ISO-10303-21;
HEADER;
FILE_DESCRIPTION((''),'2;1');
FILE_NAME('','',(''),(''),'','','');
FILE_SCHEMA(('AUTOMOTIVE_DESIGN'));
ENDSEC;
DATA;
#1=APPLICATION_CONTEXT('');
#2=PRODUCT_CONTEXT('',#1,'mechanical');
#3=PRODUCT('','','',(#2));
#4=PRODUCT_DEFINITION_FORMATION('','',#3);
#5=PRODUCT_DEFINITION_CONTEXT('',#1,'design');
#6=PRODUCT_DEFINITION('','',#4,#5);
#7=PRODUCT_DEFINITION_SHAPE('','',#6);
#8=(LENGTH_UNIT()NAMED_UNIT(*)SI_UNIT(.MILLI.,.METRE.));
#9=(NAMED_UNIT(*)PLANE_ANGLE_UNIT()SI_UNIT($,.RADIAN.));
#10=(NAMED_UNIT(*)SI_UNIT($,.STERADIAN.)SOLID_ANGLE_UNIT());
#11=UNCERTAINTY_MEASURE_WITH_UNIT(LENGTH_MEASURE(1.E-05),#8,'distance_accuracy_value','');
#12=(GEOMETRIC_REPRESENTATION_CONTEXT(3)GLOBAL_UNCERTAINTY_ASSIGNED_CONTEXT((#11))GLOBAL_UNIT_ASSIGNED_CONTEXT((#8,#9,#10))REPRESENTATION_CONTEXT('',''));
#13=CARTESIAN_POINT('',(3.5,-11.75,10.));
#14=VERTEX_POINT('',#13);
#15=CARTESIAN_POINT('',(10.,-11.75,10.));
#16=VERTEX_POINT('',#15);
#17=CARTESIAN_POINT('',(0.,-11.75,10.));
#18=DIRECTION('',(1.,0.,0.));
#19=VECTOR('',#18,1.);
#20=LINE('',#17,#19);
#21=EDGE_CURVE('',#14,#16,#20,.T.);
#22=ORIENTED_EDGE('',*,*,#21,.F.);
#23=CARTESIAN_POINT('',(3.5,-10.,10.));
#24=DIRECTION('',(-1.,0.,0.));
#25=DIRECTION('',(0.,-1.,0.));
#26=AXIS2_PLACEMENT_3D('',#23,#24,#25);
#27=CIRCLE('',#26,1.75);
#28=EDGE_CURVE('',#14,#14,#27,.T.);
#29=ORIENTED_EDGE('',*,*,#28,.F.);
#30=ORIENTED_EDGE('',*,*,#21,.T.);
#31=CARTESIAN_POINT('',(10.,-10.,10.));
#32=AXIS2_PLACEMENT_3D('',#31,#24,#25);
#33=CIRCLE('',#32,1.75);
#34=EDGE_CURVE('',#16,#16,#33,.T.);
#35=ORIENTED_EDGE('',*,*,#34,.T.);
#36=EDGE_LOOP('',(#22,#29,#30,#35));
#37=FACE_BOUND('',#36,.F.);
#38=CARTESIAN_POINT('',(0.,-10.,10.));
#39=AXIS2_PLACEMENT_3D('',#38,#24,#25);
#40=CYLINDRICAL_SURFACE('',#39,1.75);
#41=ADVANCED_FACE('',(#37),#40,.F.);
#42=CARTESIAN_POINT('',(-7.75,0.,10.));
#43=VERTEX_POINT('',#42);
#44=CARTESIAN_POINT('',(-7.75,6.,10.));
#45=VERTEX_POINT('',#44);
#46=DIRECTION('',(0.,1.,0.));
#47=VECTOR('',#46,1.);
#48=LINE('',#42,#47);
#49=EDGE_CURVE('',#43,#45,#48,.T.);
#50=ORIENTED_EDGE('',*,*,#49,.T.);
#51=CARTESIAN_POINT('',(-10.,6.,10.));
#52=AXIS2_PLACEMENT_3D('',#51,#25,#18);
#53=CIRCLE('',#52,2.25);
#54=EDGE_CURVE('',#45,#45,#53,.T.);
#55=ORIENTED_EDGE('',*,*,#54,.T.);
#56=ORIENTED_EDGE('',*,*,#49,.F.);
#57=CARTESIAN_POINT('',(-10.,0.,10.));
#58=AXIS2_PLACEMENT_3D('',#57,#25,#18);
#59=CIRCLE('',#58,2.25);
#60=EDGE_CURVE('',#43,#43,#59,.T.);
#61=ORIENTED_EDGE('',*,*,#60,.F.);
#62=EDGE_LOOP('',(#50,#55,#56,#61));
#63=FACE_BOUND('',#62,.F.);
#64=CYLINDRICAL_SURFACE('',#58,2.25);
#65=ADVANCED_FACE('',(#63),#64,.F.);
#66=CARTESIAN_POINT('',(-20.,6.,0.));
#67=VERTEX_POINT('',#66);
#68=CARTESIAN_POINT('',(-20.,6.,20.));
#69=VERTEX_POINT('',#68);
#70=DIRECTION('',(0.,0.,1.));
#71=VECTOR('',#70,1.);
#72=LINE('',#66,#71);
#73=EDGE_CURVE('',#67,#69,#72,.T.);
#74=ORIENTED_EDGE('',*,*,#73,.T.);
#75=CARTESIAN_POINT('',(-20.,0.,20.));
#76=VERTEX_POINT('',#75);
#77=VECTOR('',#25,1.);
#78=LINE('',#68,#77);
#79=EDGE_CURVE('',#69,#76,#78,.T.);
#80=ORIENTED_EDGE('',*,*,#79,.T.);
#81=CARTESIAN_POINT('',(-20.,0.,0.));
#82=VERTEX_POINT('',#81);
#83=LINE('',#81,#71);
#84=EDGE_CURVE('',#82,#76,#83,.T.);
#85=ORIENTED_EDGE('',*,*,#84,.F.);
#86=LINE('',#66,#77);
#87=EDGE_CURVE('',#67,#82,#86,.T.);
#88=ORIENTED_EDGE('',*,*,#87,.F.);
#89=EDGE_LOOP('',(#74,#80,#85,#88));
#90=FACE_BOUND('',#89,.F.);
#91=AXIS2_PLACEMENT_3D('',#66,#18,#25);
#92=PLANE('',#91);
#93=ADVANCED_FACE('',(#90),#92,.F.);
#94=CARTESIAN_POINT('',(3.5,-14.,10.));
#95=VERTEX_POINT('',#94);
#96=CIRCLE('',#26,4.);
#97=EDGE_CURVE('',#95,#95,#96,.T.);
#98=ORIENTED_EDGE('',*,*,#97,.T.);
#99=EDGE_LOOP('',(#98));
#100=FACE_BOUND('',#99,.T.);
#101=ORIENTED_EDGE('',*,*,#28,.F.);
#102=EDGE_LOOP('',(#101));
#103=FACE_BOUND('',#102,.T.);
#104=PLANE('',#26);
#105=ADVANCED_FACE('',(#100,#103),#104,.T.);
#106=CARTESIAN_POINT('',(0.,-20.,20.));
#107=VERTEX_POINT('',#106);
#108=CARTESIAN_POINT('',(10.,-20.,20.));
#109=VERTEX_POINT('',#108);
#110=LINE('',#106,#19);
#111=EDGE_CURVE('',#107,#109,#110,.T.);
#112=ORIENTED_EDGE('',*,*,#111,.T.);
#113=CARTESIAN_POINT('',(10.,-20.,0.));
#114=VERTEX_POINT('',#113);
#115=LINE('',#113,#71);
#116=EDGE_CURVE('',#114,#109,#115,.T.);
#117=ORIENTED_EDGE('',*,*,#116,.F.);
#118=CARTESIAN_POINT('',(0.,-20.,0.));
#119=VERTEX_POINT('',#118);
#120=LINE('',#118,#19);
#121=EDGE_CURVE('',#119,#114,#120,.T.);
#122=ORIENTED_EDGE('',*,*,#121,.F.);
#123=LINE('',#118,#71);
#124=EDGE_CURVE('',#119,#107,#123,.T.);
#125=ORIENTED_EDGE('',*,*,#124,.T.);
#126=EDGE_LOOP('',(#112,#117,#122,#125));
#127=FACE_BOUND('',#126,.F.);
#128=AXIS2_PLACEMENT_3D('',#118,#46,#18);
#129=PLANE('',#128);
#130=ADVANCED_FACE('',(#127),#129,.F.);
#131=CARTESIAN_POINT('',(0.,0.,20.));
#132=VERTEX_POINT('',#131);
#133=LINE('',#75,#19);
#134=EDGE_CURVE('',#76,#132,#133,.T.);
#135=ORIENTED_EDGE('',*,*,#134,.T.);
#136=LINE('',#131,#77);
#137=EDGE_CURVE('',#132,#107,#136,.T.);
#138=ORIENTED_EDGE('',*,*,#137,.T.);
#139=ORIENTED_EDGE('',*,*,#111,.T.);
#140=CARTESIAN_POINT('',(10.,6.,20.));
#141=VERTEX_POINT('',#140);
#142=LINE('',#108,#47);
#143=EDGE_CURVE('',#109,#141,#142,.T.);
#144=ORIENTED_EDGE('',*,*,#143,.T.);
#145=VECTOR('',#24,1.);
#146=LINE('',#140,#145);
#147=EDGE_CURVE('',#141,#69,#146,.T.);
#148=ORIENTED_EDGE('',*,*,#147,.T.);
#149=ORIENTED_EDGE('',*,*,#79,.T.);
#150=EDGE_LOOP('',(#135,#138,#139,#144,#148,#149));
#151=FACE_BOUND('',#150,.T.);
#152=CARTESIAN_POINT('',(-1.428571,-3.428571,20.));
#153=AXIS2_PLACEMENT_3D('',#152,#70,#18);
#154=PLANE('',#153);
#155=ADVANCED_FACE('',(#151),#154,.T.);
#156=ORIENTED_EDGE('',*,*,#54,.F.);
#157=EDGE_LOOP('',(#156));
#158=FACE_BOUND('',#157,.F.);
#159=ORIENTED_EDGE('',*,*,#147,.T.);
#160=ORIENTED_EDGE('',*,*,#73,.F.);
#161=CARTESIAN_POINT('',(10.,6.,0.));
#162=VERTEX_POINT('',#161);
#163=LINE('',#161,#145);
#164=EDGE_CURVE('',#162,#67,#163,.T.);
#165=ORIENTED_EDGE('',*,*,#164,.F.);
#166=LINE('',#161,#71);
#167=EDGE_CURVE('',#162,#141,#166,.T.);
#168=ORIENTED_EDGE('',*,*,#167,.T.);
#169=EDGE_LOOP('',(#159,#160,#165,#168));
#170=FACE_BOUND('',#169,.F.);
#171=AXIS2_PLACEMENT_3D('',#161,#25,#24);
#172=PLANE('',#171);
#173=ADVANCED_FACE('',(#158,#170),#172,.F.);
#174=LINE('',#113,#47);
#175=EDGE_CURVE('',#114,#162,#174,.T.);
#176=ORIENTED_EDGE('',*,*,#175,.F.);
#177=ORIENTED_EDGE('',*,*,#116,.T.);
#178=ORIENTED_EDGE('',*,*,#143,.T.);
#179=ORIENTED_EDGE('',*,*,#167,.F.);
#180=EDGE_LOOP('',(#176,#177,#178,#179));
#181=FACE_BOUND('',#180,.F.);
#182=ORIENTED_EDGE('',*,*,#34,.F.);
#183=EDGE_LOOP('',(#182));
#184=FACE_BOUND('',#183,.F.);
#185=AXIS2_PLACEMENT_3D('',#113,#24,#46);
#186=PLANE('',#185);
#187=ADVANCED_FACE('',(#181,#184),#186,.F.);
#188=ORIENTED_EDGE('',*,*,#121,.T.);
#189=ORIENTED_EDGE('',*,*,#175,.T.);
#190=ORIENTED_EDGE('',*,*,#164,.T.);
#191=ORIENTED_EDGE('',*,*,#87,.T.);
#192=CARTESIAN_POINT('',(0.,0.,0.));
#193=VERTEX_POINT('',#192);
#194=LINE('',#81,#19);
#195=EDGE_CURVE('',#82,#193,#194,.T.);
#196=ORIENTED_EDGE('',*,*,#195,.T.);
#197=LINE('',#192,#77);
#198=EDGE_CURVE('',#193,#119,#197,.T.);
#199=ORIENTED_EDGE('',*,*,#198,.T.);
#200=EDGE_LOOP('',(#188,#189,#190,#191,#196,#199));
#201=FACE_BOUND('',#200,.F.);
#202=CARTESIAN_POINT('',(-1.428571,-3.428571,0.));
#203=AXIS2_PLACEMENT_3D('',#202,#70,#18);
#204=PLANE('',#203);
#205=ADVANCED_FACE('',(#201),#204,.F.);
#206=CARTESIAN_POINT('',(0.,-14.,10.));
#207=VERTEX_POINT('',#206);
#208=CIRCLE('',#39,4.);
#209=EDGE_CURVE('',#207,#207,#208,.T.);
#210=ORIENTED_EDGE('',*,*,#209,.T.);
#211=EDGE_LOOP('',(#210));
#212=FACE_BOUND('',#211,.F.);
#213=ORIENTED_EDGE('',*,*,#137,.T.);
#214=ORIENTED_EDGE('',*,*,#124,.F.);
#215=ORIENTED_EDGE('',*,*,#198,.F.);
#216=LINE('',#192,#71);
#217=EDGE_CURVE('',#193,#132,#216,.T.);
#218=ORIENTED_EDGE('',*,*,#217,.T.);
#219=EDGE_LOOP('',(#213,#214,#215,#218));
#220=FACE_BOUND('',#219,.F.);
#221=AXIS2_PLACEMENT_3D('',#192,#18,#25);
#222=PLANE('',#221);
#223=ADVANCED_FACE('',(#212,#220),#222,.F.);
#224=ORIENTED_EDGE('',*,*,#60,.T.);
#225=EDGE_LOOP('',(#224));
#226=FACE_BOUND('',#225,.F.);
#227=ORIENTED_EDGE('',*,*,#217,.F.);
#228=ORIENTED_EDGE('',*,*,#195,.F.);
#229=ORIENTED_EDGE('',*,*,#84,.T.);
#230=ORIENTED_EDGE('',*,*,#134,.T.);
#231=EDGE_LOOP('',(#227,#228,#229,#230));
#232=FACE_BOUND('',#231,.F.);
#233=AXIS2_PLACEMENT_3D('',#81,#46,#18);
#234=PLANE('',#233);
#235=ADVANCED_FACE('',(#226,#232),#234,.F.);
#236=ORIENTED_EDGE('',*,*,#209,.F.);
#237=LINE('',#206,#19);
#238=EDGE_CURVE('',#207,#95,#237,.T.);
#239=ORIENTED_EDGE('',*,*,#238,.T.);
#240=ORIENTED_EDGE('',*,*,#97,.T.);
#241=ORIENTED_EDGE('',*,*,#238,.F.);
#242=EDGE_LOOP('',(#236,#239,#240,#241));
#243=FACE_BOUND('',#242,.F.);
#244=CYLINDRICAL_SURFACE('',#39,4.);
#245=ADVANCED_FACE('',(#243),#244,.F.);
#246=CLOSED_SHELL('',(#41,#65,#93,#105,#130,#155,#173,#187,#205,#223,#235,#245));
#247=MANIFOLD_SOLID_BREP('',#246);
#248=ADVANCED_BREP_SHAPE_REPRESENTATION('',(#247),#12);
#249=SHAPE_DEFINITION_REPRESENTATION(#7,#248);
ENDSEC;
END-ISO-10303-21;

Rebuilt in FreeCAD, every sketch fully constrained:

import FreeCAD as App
import Part
import Sketcher

V = App.Vector

doc = App.newDocument("Part")
body = doc.addObject("PartDesign::Body", "Body")

# Sketch on XY plane
sketch1 = body.newObject("Sketcher::SketchObject", "Sketch")
sketch1.AttachmentSupport = (doc.getObject("XY_Plane"), [""])
sketch1.MapMode = "FlatFace"
sketch1.addGeometry([
    Part.LineSegment(V(0, 0, 0), V(0, -20, 0)),  # 0
    Part.LineSegment(V(0, -20, 0), V(10, -20, 0)),  # 1
    Part.LineSegment(V(10, -20, 0), V(10, 6, 0)),  # 2
    Part.LineSegment(V(10, 6, 0), V(-20, 6, 0)),  # 3
    Part.LineSegment(V(-20, 6, 0), V(-20, 0, 0)),  # 4
    Part.LineSegment(V(-20, 0, 0), V(0, 0, 0)),  # 5
], False)
sketch1.addConstraint([
    Sketcher.Constraint("Coincident", 0, 2, 1, 1),
    Sketcher.Constraint("Coincident", 1, 2, 2, 1),
    Sketcher.Constraint("Coincident", 2, 2, 3, 1),
    Sketcher.Constraint("Coincident", 3, 2, 4, 1),
    Sketcher.Constraint("Coincident", 4, 2, 5, 1),
    Sketcher.Constraint("Coincident", 5, 2, 0, 1),
    Sketcher.Constraint("Vertical", 0),
    Sketcher.Constraint("Horizontal", 1),
    Sketcher.Constraint("Vertical", 2),
    Sketcher.Constraint("Horizontal", 3),
    Sketcher.Constraint("Vertical", 4),
    Sketcher.Constraint("Horizontal", 5),
    Sketcher.Constraint("Coincident", 5, 2, -1, 1),
    Sketcher.Constraint("Equal", 5, 0),
    Sketcher.Constraint("DistanceX", 1, 1, 1, 2, 10.0),
    Sketcher.Constraint("DistanceX", 3, 2, 3, 1, 30.0),
    Sketcher.Constraint("DistanceY", 2, 1, 2, 2, 26.0),
])
pad1 = body.newObject("PartDesign::Pad", "Pad")
pad1.Profile = sketch1
pad1.Length = 20

# Sketch on XZ plane
sketch2 = body.newObject("Sketcher::SketchObject", "Sketch001")
sketch2.AttachmentSupport = (doc.getObject("XZ_Plane"), [""])
sketch2.MapMode = "FlatFace"
sketch2.addGeometry(Part.Circle(V(-10, 10, 0), V(0, 0, 1), 2.2), False)
sketch2.addConstraint([
    Sketcher.Constraint("Diameter", 0, 4.5),
    Sketcher.Constraint("DistanceX", 0, 3, -1, 1, 10.0),
    Sketcher.Constraint("DistanceY", -1, 1, 0, 3, 10.0),
])
pocket1 = body.newObject("PartDesign::Pocket", "Pocket")
pocket1.Profile = sketch2
pocket1.Type = "ThroughAll"

# Sketch on YZ plane
sketch3 = body.newObject("Sketcher::SketchObject", "Sketch002")
sketch3.AttachmentSupport = (doc.getObject("YZ_Plane"), [""])
sketch3.MapMode = "FlatFace"
sketch3.addGeometry(Part.Circle(V(-10, 10, 0), V(0, 0, 1), 1.8), False)
sketch3.addConstraint([
    Sketcher.Constraint("Diameter", 0, 3.5),
    Sketcher.Constraint("DistanceX", 0, 3, -1, 1, 10.0),
    Sketcher.Constraint("DistanceY", -1, 1, 0, 3, 10.0),
])
pocket2 = body.newObject("PartDesign::Pocket", "Pocket001")
pocket2.Profile = sketch3
pocket2.Type = "ThroughAll"
pocket2.Reversed = True

# Sketch on YZ plane
sketch4 = body.newObject("Sketcher::SketchObject", "Sketch003")
sketch4.AttachmentSupport = (doc.getObject("YZ_Plane"), [""])
sketch4.MapMode = "FlatFace"
sketch4.addGeometry(Part.Circle(V(-10, 10, 0), V(0, 0, 1), 4), False)
sketch4.addConstraint([
    Sketcher.Constraint("Diameter", 0, 8.0),
    Sketcher.Constraint("DistanceX", 0, 3, -1, 1, 10.0),
    Sketcher.Constraint("DistanceY", -1, 1, 0, 3, 10.0),
])
pocket3 = body.newObject("PartDesign::Pocket", "Pocket002")
pocket3.Profile = sketch4
pocket3.Length = 3.5
pocket3.Reversed = True

doc.recompute()
